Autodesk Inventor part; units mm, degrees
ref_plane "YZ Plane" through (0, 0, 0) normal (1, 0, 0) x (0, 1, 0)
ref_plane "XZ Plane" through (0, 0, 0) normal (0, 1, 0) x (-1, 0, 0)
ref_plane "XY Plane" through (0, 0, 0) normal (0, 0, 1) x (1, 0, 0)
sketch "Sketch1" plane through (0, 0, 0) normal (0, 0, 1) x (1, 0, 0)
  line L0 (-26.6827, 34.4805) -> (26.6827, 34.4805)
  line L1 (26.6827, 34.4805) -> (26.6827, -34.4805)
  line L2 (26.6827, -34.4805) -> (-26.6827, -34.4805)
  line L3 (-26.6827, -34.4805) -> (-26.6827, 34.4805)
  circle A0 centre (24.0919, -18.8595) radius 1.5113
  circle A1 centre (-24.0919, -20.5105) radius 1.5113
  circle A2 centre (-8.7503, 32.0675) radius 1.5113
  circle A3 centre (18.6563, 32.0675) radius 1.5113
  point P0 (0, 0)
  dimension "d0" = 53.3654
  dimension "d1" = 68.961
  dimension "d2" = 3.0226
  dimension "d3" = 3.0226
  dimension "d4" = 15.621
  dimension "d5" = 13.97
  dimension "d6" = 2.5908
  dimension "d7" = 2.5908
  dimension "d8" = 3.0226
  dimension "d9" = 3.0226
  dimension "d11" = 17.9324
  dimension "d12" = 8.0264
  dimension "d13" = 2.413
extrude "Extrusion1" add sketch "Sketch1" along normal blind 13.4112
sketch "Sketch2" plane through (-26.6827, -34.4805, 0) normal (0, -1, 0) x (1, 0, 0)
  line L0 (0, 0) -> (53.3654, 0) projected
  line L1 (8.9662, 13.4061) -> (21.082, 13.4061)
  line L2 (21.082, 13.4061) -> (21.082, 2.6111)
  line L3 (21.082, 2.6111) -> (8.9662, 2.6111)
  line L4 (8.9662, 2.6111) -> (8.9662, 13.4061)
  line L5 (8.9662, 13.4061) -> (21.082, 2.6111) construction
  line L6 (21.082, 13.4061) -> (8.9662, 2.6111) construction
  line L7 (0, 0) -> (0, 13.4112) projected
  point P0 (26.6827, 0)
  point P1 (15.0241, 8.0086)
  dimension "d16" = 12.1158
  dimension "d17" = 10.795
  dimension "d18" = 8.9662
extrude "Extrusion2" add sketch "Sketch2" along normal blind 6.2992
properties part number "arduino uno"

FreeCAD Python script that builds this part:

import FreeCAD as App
import Part
import Sketcher

V = App.Vector
Q = App.Units.Quantity


def add_polygon(sketch, points):
    """Adds a closed chain of lines whose ends are joined by coincident constraints."""
    first, n = sketch.GeometryCount, len(points)
    for a, b in zip(points, points[1:] + points[:1]):
        sketch.addGeometry(Part.LineSegment(App.Vector(*a, 0), App.Vector(*b, 0)), False)
    for i in range(n):
        sketch.addConstraint(Sketcher.Constraint("Coincident", first + i, 2, first + (i + 1) % n, 1))

doc = App.newDocument("Part")
body = doc.addObject("PartDesign::Body", "Body")

sketch1 = doc.addObject("Sketcher::SketchObject", "Sketch")
body.addObject(sketch1)
sketch1.AttachmentSupport = (doc.XY_Plane, [""])
sketch1.MapMode = "FlatFace"
add_polygon(sketch1, [(26.7, 34.5), (-26.7, 34.5), (-26.7, -34.5), (26.7, -34.5)])
sketch1.addGeometry(Part.Circle(V(-24.1, -20.5, 0), V(0, 0, 1), 1.5), False)
sketch1.addGeometry(Part.Circle(V(24.1, -18.9, 0), V(0, 0, 1), 1.5), False)
sketch1.addGeometry(Part.Circle(V(-8.8, 32.1, 0), V(0, 0, 1), 1.5), False)
sketch1.addGeometry(Part.Circle(V(18.7, 32.1, 0), V(0, 0, 1), 1.5), False)
sketch1.addConstraint(Sketcher.Constraint("Horizontal", 0))
sketch1.addConstraint(Sketcher.Constraint("Vertical", 1))
sketch1.addConstraint(Sketcher.Constraint("Horizontal", 2))
sketch1.addConstraint(Sketcher.Constraint("Vertical", 3))
sketch1.addConstraint(Sketcher.Constraint("Equal", 4, 5))
sketch1.addConstraint(Sketcher.Constraint("Equal", 5, 6))
sketch1.addConstraint(Sketcher.Constraint("Equal", 6, 7))
sketch1.addConstraint(Sketcher.Constraint("Symmetric", 0, 2, 2, 2, -1, 1))
sketch1.addConstraint(Sketcher.Constraint("Horizontal", 6, 3, 7, 3))
sketch1.addConstraint(Sketcher.Constraint("Diameter", 4, Q("0.119 in")))
sketch1.addConstraint(Sketcher.Constraint("DistanceX", 0, 2, 0, 1, Q("2.101 in")))
sketch1.addConstraint(Sketcher.Constraint("DistanceY", 1, 2, 1, 1, Q("2.715 in")))
sketch1.addConstraint(Sketcher.Constraint("DistanceY", 1, 2, 4, 3, Q("0.55 in")))
sketch1.addConstraint(Sketcher.Constraint("DistanceX", 0, 2, 6, 3, Q("0.706 in")))
sketch1.addConstraint(Sketcher.Constraint("DistanceY", 6, 3, 0, 2, Q("0.095 in")))
sketch1.addConstraint(Sketcher.Constraint("DistanceX", 0, 2, 4, 3, Q("0.102 in")))
sketch1.addConstraint(Sketcher.Constraint("DistanceY", 1, 2, 5, 3, Q("0.615 in")))
sketch1.addConstraint(Sketcher.Constraint("DistanceX", 5, 3, 2, 2, Q("0.102 in")))
sketch1.addConstraint(Sketcher.Constraint("DistanceX", 7, 3, 2, 2, Q("0.316 in")))
pad1 = doc.addObject("PartDesign::Pad", "Pad")
body.addObject(pad1)
pad1.Profile = sketch1
pad1.Length = Q("0.528 in")

sketch2 = doc.addObject("Sketcher::SketchObject", "Sketch001")
body.addObject(sketch2)
sketch2.AttachmentSupport = (doc.XZ_Plane, [""])
sketch2.MapMode = "FlatFace"
sketch2.AttachmentOffset = App.Placement(V(0, 0, 1.3575 * 25.4), App.Rotation())
add_polygon(sketch2, [(-6, 13), (-18, 13), (-18, 3), (-6, 3)])
sketch2.addConstraint(Sketcher.Constraint("Horizontal", 0))
sketch2.addConstraint(Sketcher.Constraint("Vertical", 1))
sketch2.addConstraint(Sketcher.Constraint("Horizontal", 2))
sketch2.addConstraint(Sketcher.Constraint("Vertical", 3))
sketch2.addConstraint(Sketcher.Constraint("DistanceX", 0, 2, 0, 1, Q("0.477 in")))
sketch2.addConstraint(Sketcher.Constraint("DistanceY", 1, 2, 1, 1, Q("0.425 in")))
sketch2.addConstraint(Sketcher.Constraint("DistanceX", 0, 2, -1, 1, Q("0.6975 in")))
sketch2.addConstraint(Sketcher.Constraint("DistanceY", -1, 1, 0, 2, Q("0.5278 in")))
pad2 = doc.addObject("PartDesign::Pad", "Pad001")
body.addObject(pad2)
pad2.Profile = sketch2
pad2.Length = Q("0.248 in")

doc.recompute()
